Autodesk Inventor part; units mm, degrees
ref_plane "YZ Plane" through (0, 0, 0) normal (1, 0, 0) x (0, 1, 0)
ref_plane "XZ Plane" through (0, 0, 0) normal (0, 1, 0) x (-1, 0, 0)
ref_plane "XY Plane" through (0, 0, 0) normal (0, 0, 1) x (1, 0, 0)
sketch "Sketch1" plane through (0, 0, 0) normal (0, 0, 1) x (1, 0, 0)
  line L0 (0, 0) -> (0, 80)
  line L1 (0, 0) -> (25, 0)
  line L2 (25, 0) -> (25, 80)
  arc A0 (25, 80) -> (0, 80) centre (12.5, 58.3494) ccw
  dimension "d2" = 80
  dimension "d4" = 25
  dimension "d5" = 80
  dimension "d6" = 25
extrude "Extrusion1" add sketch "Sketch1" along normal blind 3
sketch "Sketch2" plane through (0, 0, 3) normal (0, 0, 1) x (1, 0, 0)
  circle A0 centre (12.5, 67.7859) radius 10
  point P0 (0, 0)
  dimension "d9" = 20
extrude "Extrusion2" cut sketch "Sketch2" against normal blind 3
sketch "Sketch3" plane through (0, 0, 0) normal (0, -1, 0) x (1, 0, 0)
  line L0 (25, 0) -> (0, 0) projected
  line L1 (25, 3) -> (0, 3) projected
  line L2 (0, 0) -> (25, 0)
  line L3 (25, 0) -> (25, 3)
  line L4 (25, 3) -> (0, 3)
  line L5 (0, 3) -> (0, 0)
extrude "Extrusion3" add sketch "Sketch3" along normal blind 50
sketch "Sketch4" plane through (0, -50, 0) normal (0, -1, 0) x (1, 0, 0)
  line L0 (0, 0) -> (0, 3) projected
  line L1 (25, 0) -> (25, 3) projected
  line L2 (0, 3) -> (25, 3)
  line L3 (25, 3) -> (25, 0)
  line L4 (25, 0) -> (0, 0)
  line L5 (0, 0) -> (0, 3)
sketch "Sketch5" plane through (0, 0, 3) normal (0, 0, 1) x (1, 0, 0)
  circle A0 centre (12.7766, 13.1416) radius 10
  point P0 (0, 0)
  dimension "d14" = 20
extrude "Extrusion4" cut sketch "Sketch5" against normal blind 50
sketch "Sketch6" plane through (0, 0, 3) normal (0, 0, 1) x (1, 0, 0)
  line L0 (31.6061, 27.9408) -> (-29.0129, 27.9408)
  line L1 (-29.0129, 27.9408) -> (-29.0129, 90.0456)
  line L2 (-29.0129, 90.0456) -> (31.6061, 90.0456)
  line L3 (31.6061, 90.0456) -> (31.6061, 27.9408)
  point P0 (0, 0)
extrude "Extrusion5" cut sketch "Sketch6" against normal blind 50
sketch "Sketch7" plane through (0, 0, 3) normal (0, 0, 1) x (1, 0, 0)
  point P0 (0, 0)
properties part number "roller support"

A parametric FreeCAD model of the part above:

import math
import FreeCAD as App
import Part
import Sketcher

V = App.Vector

doc = App.newDocument("Part")
body = doc.addObject("PartDesign::Body", "Body")

sketch1 = body.newObject("Sketcher::SketchObject", "Sketch")
sketch1.AttachmentSupport = (doc.getObject("XY_Plane"), [""])
sketch1.MapMode = "FlatFace"
sketch1.addGeometry([
    Part.LineSegment(V(0, 80, 0), V(0, 0, 0)),
    Part.LineSegment(V(0, 0, 0), V(25, 0, 0)),
    Part.LineSegment(V(25, 0, 0), V(25, 80, 0)),
    Part.ArcOfCircle(Part.Circle(V(12, 58, 0), V(0, 0, 1), 25), math.radians(60), math.radians(120)),
], False)
sketch1.addConstraint([
    Sketcher.Constraint("Coincident", 0, 2, 1, 1),
    Sketcher.Constraint("Coincident", 1, 2, 2, 1),
    Sketcher.Constraint("Coincident", 2, 2, 3, 1),
    Sketcher.Constraint("Coincident", 3, 2, 0, 1),
    Sketcher.Constraint("Vertical", 0),
    Sketcher.Constraint("Horizontal", 1),
    Sketcher.Constraint("Vertical", 2),
    Sketcher.Constraint("Coincident", 0, 2, -1, 1),
    Sketcher.Constraint("Horizontal", 2, 2, 3, 2),
    Sketcher.Constraint("Radius", 3, 25.0),
    Sketcher.Constraint("DistanceX", 1, 1, 1, 2, 25.0),
    Sketcher.Constraint("DistanceY", 0, 2, 0, 1, 80.0),
])
pad1 = body.newObject("PartDesign::Pad", "Pad")
pad1.Profile = sketch1
pad1.Length = 3

sketch2 = body.newObject("Sketcher::SketchObject", "Sketch001")
sketch2.AttachmentSupport = (doc.getObject("XY_Plane"), [""])
sketch2.MapMode = "FlatFace"
sketch2.AttachmentOffset = App.Placement(V(0, 0, 3), App.Rotation())
sketch2.addGeometry(Part.Circle(V(12, 68, 0), V(0, 0, 1), 10), False)
sketch2.addConstraint([
    Sketcher.Constraint("Diameter", 0, 20.0),
    Sketcher.Constraint("DistanceX", -1, 1, 0, 3, 12.5),
    Sketcher.Constraint("DistanceY", -1, 1, 0, 3, 67.786),
])
pocket1 = body.newObject("PartDesign::Pocket", "Pocket")
pocket1.Profile = sketch2
pocket1.Length = 3

sketch3 = body.newObject("Sketcher::SketchObject", "Sketch002")
sketch3.AttachmentSupport = (doc.getObject("XZ_Plane"), [""])
sketch3.MapMode = "FlatFace"
sketch3.addGeometry([
    Part.LineSegment(V(0, 0, 0), V(25, 0, 0)),
    Part.LineSegment(V(25, 0, 0), V(25, 3, 0)),
    Part.LineSegment(V(25, 3, 0), V(0, 3, 0)),
    Part.LineSegment(V(0, 3, 0), V(0, 0, 0)),
], False)
sketch3.addConstraint([
    Sketcher.Constraint("Coincident", 0, 2, 1, 1),
    Sketcher.Constraint("Coincident", 1, 2, 2, 1),
    Sketcher.Constraint("Coincident", 2, 2, 3, 1),
    Sketcher.Constraint("Coincident", 3, 2, 0, 1),
    Sketcher.Constraint("Horizontal", 0),
    Sketcher.Constraint("Vertical", 1),
    Sketcher.Constraint("Horizontal", 2),
    Sketcher.Constraint("Vertical", 3),
    Sketcher.Constraint("Coincident", 3, 2, -1, 1),
    Sketcher.Constraint("DistanceX", 0, 1, 0, 2, 25.0),
    Sketcher.Constraint("DistanceY", 1, 1, 1, 2, 3.0),
])
pad2 = body.newObject("PartDesign::Pad", "Pad001")
pad2.Profile = sketch3
pad2.Length = 50

sketch4 = body.newObject("Sketcher::SketchObject", "Sketch003")
sketch4.AttachmentSupport = (doc.getObject("XY_Plane"), [""])
sketch4.MapMode = "FlatFace"
sketch4.AttachmentOffset = App.Placement(V(0, 0, 3), App.Rotation())
sketch4.addGeometry(Part.Circle(V(13, 13, 0), V(0, 0, 1), 10), False)
sketch4.addConstraint([
    Sketcher.Constraint("Diameter", 0, 20.0),
    Sketcher.Constraint("DistanceX", -1, 1, 0, 3, 12.7766),
    Sketcher.Constraint("DistanceY", -1, 1, 0, 3, 13.1416),
])
pocket2 = body.newObject("PartDesign::Pocket", "Pocket001")
pocket2.Profile = sketch4
pocket2.Length = 50

sketch5 = body.newObject("Sketcher::SketchObject", "Sketch004")
sketch5.AttachmentSupport = (doc.getObject("XY_Plane"), [""])
sketch5.MapMode = "FlatFace"
sketch5.AttachmentOffset = App.Placement(V(0, 0, 3), App.Rotation())
sketch5.addGeometry([
    Part.LineSegment(V(-29, 28, 0), V(32, 28, 0)),
    Part.LineSegment(V(32, 28, 0), V(32, 90, 0)),
    Part.LineSegment(V(32, 90, 0), V(-29, 90, 0)),
    Part.LineSegment(V(-29, 90, 0), V(-29, 28, 0)),
], False)
sketch5.addConstraint([
    Sketcher.Constraint("Coincident", 0, 2, 1, 1),
    Sketcher.Constraint("Coincident", 1, 2, 2, 1),
    Sketcher.Constraint("Coincident", 2, 2, 3, 1),
    Sketcher.Constraint("Coincident", 3, 2, 0, 1),
    Sketcher.Constraint("Horizontal", 0),
    Sketcher.Constraint("Vertical", 1),
    Sketcher.Constraint("Horizontal", 2),
    Sketcher.Constraint("Vertical", 3),
    Sketcher.Constraint("DistanceX", 0, 1, 0, 2, 60.619),
    Sketcher.Constraint("DistanceY", 1, 1, 1, 2, 62.1048),
    Sketcher.Constraint("DistanceX", -1, 1, 0, 2, 31.606),
    Sketcher.Constraint("DistanceY", -1, 1, 0, 2, 27.9408),
])
pocket3 = body.newObject("PartDesign::Pocket", "Pocket002")
pocket3.Profile = sketch5
pocket3.Length = 50

doc.recompute()
